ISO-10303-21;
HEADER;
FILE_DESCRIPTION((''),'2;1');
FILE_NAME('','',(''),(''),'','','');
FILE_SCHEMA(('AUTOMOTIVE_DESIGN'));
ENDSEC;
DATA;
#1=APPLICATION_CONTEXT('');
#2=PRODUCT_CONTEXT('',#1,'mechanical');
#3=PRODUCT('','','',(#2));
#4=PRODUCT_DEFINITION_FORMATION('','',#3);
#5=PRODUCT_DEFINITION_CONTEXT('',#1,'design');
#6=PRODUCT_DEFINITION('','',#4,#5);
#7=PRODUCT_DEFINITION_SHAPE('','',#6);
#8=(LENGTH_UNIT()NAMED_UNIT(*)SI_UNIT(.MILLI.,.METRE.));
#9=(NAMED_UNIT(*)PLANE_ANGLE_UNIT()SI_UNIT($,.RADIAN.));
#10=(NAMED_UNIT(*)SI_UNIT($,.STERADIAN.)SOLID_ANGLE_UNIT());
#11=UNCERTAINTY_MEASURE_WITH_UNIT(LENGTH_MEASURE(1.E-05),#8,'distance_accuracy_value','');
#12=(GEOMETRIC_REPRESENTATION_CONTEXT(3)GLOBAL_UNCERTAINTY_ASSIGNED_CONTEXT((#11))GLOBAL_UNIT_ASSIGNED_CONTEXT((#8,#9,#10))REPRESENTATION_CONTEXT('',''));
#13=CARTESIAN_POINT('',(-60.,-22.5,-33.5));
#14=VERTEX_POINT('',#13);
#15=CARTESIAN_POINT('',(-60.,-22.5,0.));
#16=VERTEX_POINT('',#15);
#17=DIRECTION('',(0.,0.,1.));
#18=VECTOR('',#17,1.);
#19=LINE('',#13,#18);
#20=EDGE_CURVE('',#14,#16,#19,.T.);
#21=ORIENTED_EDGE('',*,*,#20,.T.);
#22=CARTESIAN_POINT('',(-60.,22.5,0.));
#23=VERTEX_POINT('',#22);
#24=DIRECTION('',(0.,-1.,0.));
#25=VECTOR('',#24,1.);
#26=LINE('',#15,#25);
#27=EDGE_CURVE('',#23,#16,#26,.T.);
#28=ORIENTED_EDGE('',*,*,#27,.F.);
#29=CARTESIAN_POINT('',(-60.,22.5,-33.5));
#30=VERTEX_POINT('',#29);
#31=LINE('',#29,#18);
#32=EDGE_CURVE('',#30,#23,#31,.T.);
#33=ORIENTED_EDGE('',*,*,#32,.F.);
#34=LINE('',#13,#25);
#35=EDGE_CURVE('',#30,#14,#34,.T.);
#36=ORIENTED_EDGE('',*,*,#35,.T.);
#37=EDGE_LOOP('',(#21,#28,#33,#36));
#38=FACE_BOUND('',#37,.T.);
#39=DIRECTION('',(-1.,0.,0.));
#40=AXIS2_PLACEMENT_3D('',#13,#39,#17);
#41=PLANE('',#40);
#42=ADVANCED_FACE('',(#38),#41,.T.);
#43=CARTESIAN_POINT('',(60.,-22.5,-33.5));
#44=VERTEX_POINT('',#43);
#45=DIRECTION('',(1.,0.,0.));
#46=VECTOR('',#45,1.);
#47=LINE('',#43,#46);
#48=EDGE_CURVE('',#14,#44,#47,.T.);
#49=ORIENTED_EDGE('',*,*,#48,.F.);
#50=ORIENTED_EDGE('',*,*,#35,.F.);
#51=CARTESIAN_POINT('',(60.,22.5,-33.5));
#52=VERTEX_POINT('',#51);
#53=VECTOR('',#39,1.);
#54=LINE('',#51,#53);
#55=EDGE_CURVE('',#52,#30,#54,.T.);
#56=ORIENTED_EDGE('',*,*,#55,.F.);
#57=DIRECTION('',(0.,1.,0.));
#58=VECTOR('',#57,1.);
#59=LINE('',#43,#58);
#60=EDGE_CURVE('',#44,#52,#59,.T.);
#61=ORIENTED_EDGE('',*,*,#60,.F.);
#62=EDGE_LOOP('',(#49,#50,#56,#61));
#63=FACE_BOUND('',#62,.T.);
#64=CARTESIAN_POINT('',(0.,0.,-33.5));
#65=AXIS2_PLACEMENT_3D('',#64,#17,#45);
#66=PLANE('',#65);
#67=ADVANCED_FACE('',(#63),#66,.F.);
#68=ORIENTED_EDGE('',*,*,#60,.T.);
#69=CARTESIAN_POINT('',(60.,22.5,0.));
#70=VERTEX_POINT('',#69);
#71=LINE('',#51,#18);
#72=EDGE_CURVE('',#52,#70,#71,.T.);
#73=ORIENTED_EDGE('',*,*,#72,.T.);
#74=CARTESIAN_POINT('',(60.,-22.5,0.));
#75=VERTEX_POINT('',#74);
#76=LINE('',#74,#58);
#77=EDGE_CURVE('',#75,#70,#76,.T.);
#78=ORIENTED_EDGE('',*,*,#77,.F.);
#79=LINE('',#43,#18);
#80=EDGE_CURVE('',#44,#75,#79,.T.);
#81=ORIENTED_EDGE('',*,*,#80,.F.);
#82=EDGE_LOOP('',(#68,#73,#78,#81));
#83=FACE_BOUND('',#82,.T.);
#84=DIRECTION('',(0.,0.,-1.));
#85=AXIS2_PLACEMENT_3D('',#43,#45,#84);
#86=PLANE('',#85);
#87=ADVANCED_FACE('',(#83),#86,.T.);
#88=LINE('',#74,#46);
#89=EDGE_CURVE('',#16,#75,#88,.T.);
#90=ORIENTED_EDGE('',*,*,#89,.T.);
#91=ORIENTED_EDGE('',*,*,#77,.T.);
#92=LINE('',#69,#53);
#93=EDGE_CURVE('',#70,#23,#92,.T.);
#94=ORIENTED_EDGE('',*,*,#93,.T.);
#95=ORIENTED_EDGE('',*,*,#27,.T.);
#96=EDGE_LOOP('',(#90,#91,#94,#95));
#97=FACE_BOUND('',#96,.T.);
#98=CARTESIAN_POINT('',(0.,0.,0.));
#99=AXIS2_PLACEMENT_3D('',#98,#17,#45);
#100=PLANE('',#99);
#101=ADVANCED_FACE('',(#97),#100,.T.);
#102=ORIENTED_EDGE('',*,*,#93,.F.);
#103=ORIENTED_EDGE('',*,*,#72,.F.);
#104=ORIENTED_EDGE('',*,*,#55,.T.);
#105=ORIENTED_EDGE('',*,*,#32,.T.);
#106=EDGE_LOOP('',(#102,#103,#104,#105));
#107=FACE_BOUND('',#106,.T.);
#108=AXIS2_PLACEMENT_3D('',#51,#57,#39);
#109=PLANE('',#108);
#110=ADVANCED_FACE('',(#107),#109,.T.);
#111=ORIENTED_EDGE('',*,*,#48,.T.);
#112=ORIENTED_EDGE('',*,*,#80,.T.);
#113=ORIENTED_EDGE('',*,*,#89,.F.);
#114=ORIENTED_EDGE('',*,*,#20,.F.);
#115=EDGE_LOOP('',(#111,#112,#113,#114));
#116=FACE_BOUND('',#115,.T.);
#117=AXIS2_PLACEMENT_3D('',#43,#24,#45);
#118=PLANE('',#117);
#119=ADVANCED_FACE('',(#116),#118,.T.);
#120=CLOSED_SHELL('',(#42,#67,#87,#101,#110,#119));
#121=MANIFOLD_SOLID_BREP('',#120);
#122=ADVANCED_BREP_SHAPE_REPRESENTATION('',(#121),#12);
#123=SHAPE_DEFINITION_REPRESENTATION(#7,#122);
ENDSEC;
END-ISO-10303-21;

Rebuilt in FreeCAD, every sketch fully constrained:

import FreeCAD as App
import Part
import Sketcher
from FreeCAD import Vector


def add_polygon(sketch, points):
    """Adds a closed chain of lines whose ends are joined by coincident constraints."""
    first, n = sketch.GeometryCount, len(points)
    for a, b in zip(points, points[1:] + points[:1]):
        sketch.addGeometry(Part.LineSegment(App.Vector(*a, 0), App.Vector(*b, 0)), False)
    for i in range(n):
        sketch.addConstraint(Sketcher.Constraint("Coincident", first + i, 2, first + (i + 1) % n, 1))

doc = App.newDocument("Part")
body = doc.addObject("PartDesign::Body", "Body")

# Sketch on XY plane
sketch1 = body.newObject("Sketcher::SketchObject", "Sketch")
sketch1.AttachmentSupport = (doc.getObject("XY_Plane"), [""])
sketch1.MapMode = "FlatFace"
add_polygon(sketch1, [(-60, 22), (-60, -22), (60, -22), (60, 22)])  # lines 0-3
sketch1.addConstraint([
    Sketcher.Constraint("Vertical", 0),
    Sketcher.Constraint("Horizontal", 1),
    Sketcher.Constraint("Vertical", 2),
    Sketcher.Constraint("Horizontal", 3),
    Sketcher.Constraint("Symmetric", 0, 2, 2, 2, -1, 1),
    Sketcher.Constraint("DistanceX", 1, 1, 1, 2, 120.0),
    Sketcher.Constraint("DistanceY", 0, 2, 0, 1, 45.0),
])
pad1 = body.newObject("PartDesign::Pad", "Pad")
pad1.Profile = sketch1
pad1.Length = 33.5
pad1.Reversed = True

doc.recompute()
